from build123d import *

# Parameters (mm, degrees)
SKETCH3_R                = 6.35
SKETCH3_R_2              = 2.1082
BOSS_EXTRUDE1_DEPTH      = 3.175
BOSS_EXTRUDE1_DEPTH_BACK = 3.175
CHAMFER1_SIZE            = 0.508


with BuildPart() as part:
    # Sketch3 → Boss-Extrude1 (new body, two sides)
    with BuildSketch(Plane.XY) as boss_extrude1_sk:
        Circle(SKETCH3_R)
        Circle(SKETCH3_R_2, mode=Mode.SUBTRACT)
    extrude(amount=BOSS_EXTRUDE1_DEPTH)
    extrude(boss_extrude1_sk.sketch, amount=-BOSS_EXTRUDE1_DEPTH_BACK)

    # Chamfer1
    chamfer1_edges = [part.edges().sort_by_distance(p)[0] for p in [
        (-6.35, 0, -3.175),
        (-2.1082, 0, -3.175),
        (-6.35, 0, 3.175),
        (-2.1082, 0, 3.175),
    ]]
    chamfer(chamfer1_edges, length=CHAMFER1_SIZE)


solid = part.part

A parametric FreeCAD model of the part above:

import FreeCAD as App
import Part
import Sketcher
from FreeCAD import Vector
Q = App.Units.Quantity


def edges_at(feature, points):
    """Names of the edges that pass closest to the given points."""
    edges = feature.Shape.Edges
    near = lambda p: min(range(len(edges)), key=lambda i: edges[i].distToShape(Part.Vertex(*p))[0])
    return sorted({f"Edge{near(p) + 1}" for p in points})

doc = App.newDocument("Part")
body = doc.addObject("PartDesign::Body", "Body")

# Sketch on XY plane
sketch1 = body.newObject("Sketcher::SketchObject", "Sketch")
sketch1.AttachmentSupport = (doc.getObject("XY_Plane"), [""])
sketch1.MapMode = "FlatFace"
sketch1.addGeometry([
    Part.Circle(Vector(0, 0, 0), Vector(0, 0, 1), 6.35),
    Part.Circle(Vector(0, 0, 0), Vector(0, 0, 1), 2.1082),
], False)
sketch1.addConstraint([
    Sketcher.Constraint("Coincident", 0, 3, -1, 1),
    Sketcher.Constraint("Coincident", 1, 3, -1, 1),
    Sketcher.Constraint("Diameter", 0, Q("0.5 in")),
    Sketcher.Constraint("Diameter", 1, Q("0.166 in")),
])
pad1 = body.newObject("PartDesign::Pad", "Pad")
pad1.Profile = sketch1
pad1.Type = "TwoLengths"
pad1.Length = Q("0.125 in")
pad1.Length2 = Q("0.125 in")
doc.recompute()

chamfer = body.newObject("PartDesign::Chamfer", "Chamfer")
chamfer.Base = (pad1, edges_at(pad1, [
    (-6.35, 0, -3.175),
    (-2.108, 0, -3.175),
    (-6.35, 0, 3.175),
    (-2.108, 0, 3.175),
]))
chamfer.Size = Q("0.02 in")

doc.recompute()
